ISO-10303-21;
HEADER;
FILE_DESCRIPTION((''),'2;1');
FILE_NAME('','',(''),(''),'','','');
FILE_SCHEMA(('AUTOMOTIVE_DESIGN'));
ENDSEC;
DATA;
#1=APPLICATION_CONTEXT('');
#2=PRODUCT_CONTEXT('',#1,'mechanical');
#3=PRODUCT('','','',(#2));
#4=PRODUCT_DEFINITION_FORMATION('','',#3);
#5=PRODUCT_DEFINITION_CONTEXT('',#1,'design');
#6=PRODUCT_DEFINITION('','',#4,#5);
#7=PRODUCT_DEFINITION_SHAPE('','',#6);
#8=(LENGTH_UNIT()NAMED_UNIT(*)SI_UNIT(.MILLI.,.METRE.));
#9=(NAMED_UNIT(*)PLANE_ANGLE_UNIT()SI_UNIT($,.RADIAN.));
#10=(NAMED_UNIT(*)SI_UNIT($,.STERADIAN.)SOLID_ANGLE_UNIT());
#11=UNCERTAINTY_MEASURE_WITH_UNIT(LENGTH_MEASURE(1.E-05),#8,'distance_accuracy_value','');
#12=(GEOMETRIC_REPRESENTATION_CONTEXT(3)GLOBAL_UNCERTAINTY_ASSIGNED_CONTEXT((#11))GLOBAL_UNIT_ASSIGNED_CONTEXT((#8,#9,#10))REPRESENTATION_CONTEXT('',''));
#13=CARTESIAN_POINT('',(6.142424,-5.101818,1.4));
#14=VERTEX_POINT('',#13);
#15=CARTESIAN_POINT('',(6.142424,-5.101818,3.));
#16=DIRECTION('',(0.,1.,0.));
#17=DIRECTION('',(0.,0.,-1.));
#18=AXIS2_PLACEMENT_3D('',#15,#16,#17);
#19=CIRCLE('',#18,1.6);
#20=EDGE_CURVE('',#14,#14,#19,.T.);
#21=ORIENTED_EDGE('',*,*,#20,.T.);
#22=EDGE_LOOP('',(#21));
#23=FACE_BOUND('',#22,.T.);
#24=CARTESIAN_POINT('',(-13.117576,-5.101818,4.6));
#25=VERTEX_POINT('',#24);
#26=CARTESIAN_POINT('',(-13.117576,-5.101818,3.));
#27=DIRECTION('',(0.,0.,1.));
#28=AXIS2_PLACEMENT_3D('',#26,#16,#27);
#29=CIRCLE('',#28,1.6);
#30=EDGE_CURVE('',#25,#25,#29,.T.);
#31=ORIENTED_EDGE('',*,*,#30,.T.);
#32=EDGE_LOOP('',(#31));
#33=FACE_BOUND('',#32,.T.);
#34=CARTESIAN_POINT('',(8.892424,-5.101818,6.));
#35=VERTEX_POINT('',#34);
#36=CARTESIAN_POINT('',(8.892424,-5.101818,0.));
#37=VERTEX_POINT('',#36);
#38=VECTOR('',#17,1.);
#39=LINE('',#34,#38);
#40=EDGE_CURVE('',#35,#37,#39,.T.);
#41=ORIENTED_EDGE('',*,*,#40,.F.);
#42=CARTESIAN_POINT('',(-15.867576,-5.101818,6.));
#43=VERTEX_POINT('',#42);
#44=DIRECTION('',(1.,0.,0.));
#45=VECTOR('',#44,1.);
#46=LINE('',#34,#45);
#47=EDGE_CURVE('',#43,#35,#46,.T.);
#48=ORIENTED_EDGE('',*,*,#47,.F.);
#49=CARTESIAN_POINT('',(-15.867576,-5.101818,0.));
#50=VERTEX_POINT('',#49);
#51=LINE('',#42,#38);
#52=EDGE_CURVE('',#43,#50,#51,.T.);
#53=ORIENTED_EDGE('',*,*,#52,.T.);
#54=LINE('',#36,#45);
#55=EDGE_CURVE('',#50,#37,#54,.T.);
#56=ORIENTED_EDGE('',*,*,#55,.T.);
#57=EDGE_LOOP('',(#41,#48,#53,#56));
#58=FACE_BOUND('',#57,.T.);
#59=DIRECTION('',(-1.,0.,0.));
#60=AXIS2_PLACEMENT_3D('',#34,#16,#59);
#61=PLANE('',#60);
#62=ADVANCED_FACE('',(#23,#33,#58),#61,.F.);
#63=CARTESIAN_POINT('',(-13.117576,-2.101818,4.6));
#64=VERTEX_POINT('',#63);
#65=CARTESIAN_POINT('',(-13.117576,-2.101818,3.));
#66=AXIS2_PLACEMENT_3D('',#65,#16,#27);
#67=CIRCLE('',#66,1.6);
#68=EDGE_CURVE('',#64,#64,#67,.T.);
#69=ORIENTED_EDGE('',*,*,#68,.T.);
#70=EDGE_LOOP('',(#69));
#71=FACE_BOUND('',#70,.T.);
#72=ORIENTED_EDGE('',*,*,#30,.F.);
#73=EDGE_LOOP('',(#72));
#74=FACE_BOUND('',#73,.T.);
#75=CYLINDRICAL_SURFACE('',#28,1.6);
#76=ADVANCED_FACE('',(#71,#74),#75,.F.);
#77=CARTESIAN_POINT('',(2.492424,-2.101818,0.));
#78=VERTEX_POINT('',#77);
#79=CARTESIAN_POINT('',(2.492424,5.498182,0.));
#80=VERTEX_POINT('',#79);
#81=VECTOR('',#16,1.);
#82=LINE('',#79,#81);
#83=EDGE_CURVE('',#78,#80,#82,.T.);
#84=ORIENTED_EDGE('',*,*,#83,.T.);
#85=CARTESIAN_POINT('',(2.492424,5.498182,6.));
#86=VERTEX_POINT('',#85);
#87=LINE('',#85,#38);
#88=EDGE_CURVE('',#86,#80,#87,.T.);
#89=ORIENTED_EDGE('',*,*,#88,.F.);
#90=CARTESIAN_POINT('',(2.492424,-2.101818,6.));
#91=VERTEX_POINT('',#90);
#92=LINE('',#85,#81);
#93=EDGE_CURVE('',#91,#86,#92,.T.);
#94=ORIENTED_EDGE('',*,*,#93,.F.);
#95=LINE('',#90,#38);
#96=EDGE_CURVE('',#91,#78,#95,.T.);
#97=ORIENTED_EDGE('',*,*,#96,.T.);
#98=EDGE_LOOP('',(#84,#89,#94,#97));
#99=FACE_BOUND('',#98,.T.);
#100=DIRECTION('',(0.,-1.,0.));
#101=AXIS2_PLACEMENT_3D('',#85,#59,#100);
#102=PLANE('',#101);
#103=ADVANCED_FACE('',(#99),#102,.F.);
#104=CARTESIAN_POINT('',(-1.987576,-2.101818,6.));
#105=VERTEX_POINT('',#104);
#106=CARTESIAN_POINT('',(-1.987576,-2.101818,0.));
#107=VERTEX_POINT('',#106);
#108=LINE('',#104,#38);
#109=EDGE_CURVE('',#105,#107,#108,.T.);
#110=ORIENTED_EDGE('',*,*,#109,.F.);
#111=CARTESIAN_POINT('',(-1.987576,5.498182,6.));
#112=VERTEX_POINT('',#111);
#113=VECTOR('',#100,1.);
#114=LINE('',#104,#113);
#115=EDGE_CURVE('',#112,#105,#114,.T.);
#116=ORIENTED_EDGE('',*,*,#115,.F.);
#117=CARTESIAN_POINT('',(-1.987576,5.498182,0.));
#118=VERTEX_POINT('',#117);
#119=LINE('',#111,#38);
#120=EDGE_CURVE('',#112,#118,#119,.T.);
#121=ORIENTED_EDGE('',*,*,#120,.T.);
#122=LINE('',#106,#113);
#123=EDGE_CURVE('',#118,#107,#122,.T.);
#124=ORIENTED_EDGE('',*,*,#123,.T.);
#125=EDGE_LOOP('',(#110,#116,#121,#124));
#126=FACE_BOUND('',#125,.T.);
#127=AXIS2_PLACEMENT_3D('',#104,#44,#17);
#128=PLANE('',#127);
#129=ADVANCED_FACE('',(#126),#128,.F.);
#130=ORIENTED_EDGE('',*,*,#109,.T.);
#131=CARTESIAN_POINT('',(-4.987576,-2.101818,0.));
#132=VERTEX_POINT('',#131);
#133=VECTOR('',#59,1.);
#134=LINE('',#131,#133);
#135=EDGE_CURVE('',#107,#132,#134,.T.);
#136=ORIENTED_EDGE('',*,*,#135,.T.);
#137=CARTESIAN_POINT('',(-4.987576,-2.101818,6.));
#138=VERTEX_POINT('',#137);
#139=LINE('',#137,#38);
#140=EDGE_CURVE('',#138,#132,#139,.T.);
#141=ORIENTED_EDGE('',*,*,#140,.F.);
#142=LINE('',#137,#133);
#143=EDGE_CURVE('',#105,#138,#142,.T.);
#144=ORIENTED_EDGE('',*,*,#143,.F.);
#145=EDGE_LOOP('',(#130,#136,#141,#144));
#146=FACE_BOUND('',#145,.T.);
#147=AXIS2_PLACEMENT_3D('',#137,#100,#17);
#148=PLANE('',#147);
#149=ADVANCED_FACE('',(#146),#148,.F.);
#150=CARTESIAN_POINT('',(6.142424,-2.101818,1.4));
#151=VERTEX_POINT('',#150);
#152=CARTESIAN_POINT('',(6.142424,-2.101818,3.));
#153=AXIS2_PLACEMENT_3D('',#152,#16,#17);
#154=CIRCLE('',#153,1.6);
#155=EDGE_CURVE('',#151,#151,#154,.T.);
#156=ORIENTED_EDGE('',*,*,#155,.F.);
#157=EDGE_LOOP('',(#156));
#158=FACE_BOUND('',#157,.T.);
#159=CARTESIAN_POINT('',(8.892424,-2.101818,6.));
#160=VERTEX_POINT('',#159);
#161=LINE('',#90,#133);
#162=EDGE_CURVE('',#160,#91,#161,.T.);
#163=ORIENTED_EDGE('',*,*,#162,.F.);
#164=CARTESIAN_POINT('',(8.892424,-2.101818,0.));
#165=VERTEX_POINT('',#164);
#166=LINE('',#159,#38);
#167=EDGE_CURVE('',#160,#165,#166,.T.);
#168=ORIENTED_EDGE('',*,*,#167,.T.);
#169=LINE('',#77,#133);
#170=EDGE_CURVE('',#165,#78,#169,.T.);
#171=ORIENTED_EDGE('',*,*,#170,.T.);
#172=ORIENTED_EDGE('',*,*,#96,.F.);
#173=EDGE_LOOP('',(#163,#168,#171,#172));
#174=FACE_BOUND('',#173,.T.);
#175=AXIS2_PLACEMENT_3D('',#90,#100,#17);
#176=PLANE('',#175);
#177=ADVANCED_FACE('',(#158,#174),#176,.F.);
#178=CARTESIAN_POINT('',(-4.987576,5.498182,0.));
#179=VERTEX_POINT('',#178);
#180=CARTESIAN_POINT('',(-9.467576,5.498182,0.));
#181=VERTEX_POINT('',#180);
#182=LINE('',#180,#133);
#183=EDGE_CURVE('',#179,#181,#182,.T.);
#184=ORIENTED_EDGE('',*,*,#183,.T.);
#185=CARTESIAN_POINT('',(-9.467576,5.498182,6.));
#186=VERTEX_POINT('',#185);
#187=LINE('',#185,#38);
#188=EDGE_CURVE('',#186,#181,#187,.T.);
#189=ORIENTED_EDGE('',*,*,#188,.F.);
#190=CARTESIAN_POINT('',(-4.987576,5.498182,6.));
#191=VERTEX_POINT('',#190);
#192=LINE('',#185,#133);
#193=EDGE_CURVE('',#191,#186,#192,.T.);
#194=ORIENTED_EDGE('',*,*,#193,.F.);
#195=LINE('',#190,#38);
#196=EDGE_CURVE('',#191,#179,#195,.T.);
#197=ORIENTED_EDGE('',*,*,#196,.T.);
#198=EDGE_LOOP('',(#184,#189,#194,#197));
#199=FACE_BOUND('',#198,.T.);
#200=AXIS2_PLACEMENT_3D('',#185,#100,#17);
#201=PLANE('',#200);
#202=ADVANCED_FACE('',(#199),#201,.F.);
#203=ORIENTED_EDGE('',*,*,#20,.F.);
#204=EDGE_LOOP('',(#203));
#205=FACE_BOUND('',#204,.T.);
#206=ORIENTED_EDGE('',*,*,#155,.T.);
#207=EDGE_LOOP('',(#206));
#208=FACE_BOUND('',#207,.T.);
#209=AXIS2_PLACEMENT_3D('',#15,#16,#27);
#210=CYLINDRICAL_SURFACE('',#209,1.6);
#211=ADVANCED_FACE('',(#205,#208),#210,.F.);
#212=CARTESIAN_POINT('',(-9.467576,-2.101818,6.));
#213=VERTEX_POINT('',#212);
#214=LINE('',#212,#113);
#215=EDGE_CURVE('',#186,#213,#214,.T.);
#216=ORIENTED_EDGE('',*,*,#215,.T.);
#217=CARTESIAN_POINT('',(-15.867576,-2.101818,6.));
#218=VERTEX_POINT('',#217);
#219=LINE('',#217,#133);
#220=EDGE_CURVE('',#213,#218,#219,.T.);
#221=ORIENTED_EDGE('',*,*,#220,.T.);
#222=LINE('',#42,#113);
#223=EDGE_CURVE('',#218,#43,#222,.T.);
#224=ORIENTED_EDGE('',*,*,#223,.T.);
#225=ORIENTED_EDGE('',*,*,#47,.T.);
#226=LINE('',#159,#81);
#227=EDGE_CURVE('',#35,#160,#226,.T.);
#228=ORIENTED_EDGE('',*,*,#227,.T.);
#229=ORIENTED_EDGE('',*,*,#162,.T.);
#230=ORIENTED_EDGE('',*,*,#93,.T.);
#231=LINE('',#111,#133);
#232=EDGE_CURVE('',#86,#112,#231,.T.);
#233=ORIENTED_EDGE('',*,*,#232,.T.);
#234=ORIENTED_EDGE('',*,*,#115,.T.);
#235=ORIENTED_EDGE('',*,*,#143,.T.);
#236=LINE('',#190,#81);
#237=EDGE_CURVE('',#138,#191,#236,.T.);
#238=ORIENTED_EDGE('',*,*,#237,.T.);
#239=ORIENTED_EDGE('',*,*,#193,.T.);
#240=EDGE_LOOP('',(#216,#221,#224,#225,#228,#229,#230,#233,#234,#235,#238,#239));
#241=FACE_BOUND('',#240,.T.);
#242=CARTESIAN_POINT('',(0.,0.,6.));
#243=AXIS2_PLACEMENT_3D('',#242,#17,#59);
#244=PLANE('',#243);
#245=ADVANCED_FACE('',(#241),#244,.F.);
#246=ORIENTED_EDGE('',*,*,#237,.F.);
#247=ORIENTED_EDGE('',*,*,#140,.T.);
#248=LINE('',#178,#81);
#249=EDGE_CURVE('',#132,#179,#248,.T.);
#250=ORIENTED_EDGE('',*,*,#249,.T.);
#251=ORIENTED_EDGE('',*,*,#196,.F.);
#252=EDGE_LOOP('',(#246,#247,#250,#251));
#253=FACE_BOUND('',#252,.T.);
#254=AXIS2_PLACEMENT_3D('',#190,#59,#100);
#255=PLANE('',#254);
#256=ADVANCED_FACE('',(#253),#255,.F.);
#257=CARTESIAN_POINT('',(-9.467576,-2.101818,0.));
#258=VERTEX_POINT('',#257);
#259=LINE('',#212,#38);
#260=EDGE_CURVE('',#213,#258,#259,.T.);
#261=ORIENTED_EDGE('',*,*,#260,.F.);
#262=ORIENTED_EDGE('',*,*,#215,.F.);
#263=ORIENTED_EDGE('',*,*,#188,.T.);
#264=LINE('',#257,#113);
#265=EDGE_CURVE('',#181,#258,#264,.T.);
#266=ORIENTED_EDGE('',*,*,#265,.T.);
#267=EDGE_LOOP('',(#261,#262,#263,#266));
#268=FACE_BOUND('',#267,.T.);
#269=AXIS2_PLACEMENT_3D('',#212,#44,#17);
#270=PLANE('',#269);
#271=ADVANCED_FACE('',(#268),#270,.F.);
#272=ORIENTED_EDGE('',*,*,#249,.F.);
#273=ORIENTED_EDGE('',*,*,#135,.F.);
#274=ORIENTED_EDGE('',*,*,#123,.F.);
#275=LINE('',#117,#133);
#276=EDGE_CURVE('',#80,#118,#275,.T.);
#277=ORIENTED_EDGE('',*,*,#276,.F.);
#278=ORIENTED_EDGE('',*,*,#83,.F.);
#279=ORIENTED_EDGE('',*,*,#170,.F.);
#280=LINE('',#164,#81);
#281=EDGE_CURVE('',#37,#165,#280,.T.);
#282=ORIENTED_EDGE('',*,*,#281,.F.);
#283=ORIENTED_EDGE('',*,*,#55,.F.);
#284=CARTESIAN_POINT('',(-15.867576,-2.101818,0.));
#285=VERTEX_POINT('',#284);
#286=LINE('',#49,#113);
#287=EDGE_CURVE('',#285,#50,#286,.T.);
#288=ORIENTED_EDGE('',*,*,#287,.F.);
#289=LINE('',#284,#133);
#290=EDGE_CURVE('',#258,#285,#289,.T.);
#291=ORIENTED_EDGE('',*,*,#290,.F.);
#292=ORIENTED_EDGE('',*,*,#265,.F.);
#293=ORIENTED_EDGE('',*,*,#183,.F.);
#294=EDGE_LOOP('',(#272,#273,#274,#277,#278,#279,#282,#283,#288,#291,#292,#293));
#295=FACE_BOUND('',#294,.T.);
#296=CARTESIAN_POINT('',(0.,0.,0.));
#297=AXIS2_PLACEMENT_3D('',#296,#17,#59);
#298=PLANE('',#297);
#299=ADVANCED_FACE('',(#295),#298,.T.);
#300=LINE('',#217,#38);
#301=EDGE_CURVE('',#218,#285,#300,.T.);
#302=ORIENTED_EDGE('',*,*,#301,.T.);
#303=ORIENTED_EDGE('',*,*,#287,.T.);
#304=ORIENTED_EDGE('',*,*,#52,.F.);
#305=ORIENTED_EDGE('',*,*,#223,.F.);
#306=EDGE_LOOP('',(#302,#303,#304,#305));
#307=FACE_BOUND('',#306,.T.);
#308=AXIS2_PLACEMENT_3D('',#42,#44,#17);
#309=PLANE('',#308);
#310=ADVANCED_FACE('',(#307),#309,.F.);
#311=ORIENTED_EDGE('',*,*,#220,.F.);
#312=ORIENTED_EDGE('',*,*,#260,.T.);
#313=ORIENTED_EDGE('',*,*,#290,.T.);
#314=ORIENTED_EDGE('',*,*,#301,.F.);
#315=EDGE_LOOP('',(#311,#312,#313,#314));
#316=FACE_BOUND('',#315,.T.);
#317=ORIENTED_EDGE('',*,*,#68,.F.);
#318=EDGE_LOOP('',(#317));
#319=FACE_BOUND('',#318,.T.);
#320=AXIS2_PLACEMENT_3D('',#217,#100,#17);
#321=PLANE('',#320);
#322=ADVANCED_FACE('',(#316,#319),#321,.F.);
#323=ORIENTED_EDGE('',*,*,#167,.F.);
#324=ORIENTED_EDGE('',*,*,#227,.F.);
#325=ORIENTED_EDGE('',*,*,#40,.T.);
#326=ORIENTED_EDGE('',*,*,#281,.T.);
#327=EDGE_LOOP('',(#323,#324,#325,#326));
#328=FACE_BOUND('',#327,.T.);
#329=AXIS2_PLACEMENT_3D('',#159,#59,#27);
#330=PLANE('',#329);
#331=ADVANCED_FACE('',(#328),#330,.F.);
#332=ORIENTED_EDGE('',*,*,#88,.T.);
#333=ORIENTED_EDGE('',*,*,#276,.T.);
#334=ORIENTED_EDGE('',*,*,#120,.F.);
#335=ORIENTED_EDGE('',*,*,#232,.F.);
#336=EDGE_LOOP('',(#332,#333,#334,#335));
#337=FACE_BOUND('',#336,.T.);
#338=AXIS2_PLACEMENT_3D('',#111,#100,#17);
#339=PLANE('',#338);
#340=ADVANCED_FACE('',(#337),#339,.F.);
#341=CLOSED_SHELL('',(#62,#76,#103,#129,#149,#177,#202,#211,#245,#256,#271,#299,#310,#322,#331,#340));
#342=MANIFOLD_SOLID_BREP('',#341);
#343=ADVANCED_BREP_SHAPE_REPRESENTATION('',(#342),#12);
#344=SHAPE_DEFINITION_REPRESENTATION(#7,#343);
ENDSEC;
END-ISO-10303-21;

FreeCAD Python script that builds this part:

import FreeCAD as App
import Part
import Sketcher
from FreeCAD import Vector

doc = App.newDocument("Part")
body = doc.addObject("PartDesign::Body", "Body")

# Sketch on XY plane
sketch1 = doc.addObject("Sketcher::SketchObject", "Sketch")
body.addObject(sketch1)
sketch1.AttachmentSupport = (doc.XY_Plane, [""])
sketch1.MapMode = "FlatFace"
sketch1.addGeometry([
    Part.LineSegment(Vector(-5, 5.5, 0), Vector(-9.5, 5.5, 0)),  # 0
    Part.LineSegment(Vector(-9.5, 5.5, 0), Vector(-9.5, -2.1, 0)),  # 1
    Part.LineSegment(Vector(-9.5, -2.1, 0), Vector(-15.9, -2.1, 0)),  # 2
    Part.LineSegment(Vector(-15.9, -2.1, 0), Vector(-15.9, -5.1, 0)),  # 3
    Part.LineSegment(Vector(-15.9, -5.1, 0), Vector(8.9, -5.1, 0)),  # 4
    Part.LineSegment(Vector(8.9, -5.1, 0), Vector(8.9, -2.1, 0)),  # 5
    Part.LineSegment(Vector(8.9, -2.1, 0), Vector(2.5, -2.1, 0)),  # 6
    Part.LineSegment(Vector(2.5, -2.1, 0), Vector(2.5, 5.5, 0)),  # 7
    Part.LineSegment(Vector(2.5, 5.5, 0), Vector(-2, 5.5, 0)),  # 8
    Part.LineSegment(Vector(-2, 5.5, 0), Vector(-2, -2.1, 0)),  # 9
    Part.LineSegment(Vector(-2, -2.1, 0), Vector(-5, -2.1, 0)),  # 10
    Part.LineSegment(Vector(-5, -2.1, 0), Vector(-5, 5.5, 0)),  # 11
], False)
sketch1.addConstraint([
    Sketcher.Constraint("Coincident", 0, 2, 1, 1),
    Sketcher.Constraint("Coincident", 1, 2, 2, 1),
    Sketcher.Constraint("Coincident", 2, 2, 3, 1),
    Sketcher.Constraint("Coincident", 3, 2, 4, 1),
    Sketcher.Constraint("Coincident", 4, 2, 5, 1),
    Sketcher.Constraint("Coincident", 5, 2, 6, 1),
    Sketcher.Constraint("Coincident", 6, 2, 7, 1),
    Sketcher.Constraint("Coincident", 7, 2, 8, 1),
    Sketcher.Constraint("Coincident", 8, 2, 9, 1),
    Sketcher.Constraint("Coincident", 9, 2, 10, 1),
    Sketcher.Constraint("Coincident", 10, 2, 11, 1),
    Sketcher.Constraint("Coincident", 11, 2, 0, 1),
    Sketcher.Constraint("Horizontal", 0),
    Sketcher.Constraint("Vertical", 1),
    Sketcher.Constraint("Horizontal", 2),
    Sketcher.Constraint("Vertical", 3),
    Sketcher.Constraint("Horizontal", 4),
    Sketcher.Constraint("Vertical", 5),
    Sketcher.Constraint("Horizontal", 6),
    Sketcher.Constraint("Vertical", 7),
    Sketcher.Constraint("Horizontal", 8),
    Sketcher.Constraint("Vertical", 9),
    Sketcher.Constraint("Horizontal", 10),
    Sketcher.Constraint("Vertical", 11),
    Sketcher.Constraint("Horizontal", 2, 2, 5, 2),
    Sketcher.Constraint("Horizontal", 0, 2, 7, 2),
    Sketcher.Constraint("Horizontal", 6, 2, 9, 2),
    Sketcher.Constraint("Equal", 2, 6),
    Sketcher.Constraint("Equal", 0, 8),
    Sketcher.Constraint("Equal", 10, 3),
    Sketcher.Constraint("DistanceX", 10, 2, 10, 1, 3.0),
    Sketcher.Constraint("DistanceX", 2, 2, 2, 1, 6.4),
    Sketcher.Constraint("DistanceY", 1, 2, 1, 1, 7.6),
    Sketcher.Constraint("DistanceX", 0, 2, 0, 1, 4.48),
    Sketcher.Constraint("DistanceY", -1, 1, 0, 2, 5.498182),
    Sketcher.Constraint("DistanceX", 0, 2, -1, 1, 9.467576),
])
pad1 = doc.addObject("PartDesign::Pad", "Pad")
body.addObject(pad1)
pad1.Profile = sketch1
pad1.Length = 6

# Sketch on XZ plane
sketch2 = doc.addObject("Sketcher::SketchObject", "Sketch001")
body.addObject(sketch2)
sketch2.AttachmentSupport = (doc.XZ_Plane, [""])
sketch2.MapMode = "FlatFace"
sketch2.AttachmentOffset = App.Placement(Vector(0, 0, 2.101818), App.Rotation())
sketch2.addGeometry([
    Part.Circle(Vector(-13.1, 3, 0), Vector(0, 0, 1), 1.6),
    Part.Circle(Vector(6.1, 3, 0), Vector(0, 0, 1), 1.6),
], False)
sketch2.addConstraint([
    Sketcher.Constraint("Equal", 0, 1),
    Sketcher.Constraint("Horizontal", 0, 3, 1, 3),
    Sketcher.Constraint("Diameter", 0, 3.2),
    Sketcher.Constraint("DistanceY", -1, 1, 0, 3, 3.0),
    Sketcher.Constraint("DistanceX", 0, 3, 1, 3, 19.26),
    Sketcher.Constraint("DistanceX", 0, 3, -1, 1, 13.117576),
])
pocket1 = doc.addObject("PartDesign::Pocket", "Pocket")
body.addObject(pocket1)
pocket1.Profile = sketch2
pocket1.Type = "ThroughAll"
pocket1.Reversed = True

doc.recompute()
